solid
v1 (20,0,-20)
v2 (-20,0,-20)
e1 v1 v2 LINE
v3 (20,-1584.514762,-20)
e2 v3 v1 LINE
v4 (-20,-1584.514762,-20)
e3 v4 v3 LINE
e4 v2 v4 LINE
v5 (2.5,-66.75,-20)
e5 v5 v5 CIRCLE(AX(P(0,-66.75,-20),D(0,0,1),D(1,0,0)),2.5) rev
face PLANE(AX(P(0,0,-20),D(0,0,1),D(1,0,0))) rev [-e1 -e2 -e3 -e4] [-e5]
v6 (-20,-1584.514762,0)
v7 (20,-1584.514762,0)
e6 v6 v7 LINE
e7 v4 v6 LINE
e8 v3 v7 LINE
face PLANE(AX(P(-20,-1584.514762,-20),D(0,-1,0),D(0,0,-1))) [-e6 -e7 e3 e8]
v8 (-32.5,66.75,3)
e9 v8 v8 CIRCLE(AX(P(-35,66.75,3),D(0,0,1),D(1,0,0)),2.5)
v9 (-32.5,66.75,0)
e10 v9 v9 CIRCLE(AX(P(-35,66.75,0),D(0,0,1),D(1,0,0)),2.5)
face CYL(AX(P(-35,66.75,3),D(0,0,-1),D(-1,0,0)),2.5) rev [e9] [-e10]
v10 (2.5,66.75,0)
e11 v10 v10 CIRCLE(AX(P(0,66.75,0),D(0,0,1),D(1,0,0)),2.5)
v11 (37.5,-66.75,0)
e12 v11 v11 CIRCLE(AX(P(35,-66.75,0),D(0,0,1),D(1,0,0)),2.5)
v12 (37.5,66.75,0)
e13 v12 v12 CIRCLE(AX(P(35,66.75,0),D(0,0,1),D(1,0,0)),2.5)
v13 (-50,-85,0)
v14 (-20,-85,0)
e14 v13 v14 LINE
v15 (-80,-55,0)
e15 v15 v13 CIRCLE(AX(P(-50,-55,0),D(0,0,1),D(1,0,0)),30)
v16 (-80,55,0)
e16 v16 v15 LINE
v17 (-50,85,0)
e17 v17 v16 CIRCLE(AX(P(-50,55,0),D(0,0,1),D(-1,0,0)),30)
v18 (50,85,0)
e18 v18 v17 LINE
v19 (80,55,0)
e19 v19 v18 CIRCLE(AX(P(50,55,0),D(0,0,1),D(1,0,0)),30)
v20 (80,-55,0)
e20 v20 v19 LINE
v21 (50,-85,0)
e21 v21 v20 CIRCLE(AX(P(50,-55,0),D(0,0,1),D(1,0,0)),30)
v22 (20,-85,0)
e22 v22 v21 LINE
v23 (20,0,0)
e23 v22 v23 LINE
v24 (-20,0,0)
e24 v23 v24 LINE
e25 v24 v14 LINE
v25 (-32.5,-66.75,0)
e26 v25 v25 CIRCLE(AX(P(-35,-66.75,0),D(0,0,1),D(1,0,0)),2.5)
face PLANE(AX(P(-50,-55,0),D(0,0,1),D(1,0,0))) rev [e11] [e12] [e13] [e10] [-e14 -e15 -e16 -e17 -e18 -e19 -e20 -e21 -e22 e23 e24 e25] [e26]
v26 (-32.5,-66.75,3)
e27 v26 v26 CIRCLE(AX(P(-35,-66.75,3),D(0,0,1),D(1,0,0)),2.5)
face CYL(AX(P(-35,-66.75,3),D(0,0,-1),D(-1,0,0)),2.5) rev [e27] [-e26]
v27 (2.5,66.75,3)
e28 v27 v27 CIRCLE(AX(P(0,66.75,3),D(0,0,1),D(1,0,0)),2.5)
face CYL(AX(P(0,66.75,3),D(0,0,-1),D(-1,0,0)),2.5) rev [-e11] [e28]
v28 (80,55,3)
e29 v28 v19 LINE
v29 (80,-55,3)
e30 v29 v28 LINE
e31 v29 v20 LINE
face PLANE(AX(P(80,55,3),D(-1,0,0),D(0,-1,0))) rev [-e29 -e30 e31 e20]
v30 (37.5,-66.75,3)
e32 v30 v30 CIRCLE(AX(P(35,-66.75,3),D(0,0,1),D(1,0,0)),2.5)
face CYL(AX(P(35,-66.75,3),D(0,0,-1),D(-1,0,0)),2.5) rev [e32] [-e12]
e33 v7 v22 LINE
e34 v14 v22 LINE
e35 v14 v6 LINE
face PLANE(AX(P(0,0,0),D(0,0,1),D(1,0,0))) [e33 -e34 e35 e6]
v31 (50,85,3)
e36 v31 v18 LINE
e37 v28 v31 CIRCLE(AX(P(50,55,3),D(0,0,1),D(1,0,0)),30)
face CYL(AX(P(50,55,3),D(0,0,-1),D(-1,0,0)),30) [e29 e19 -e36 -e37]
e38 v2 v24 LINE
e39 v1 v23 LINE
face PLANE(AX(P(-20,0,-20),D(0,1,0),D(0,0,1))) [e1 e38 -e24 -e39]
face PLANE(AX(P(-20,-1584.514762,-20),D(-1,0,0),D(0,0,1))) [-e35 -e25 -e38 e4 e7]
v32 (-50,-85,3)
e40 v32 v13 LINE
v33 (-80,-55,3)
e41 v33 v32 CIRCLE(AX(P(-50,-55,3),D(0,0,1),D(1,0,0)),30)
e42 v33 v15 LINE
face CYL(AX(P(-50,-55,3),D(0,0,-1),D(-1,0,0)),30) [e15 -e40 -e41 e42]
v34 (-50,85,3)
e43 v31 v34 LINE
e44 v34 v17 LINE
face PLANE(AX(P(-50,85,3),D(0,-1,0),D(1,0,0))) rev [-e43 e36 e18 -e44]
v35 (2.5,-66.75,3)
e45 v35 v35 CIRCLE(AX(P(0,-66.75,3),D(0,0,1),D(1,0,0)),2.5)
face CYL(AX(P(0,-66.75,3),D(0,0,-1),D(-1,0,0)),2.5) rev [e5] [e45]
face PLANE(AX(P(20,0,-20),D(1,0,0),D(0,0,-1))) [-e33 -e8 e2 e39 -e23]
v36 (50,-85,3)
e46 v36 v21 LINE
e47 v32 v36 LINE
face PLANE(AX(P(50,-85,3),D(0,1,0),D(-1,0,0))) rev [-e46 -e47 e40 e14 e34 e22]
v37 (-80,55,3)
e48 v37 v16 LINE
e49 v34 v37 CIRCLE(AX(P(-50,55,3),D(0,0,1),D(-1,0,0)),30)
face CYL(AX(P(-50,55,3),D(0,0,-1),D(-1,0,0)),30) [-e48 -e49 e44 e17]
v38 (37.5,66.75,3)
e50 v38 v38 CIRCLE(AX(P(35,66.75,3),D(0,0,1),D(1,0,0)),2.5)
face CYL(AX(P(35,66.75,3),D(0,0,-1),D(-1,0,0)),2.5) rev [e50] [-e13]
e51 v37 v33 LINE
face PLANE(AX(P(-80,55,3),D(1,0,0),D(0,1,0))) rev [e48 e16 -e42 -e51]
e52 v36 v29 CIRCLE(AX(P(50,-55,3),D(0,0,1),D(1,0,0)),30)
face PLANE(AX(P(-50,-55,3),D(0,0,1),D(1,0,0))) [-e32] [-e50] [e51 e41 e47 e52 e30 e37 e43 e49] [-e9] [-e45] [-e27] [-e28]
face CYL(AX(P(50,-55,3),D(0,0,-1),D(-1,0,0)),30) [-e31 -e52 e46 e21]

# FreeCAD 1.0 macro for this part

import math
import FreeCAD as App
import Part
import Sketcher
from FreeCAD import Vector
Q = App.Units.Quantity

doc = App.newDocument("Part")
body = doc.addObject("PartDesign::Body", "Body")

# Sketch on XY plane
sketch1 = body.newObject("Sketcher::SketchObject", "Sketch")
sketch1.AttachmentSupport = (doc.getObject("XY_Plane"), [""])
sketch1.MapMode = "FlatFace"
sketch1.addGeometry(Part.LineSegment(Vector(50, 85, 0), Vector(-50, 85, 0)), False)
sketch1.addGeometry(Part.ArcOfCircle(Part.Circle(Vector(-50, 55, 0), Vector(0, 0, 1), 30), math.radians(90), math.radians(180)), False)
sketch1.addGeometry(Part.LineSegment(Vector(-80, 55, 0), Vector(-80, -55, 0)), False)
sketch1.addGeometry(Part.ArcOfCircle(Part.Circle(Vector(-50, -55, 0), Vector(0, 0, 1), 30), math.radians(180), math.radians(270)), False)
sketch1.addGeometry(Part.LineSegment(Vector(-50, -85, 0), Vector(50, -85, 0)), False)
sketch1.addGeometry(Part.ArcOfCircle(Part.Circle(Vector(50, -55, 0), Vector(0, 0, 1), 30), math.radians(-90), math.radians(0)), False)
sketch1.addGeometry(Part.LineSegment(Vector(80, -55, 0), Vector(80, 55, 0)), False)
sketch1.addGeometry(Part.ArcOfCircle(Part.Circle(Vector(50, 55, 0), Vector(0, 0, 1), 30), math.radians(0), math.radians(90)), False)
sketch1.addGeometry(Part.Circle(Vector(35, -66.75, 0), Vector(0, 0, 1), 2.5), False)
sketch1.addGeometry(Part.Circle(Vector(0, -66.75, 0), Vector(0, 0, 1), 2.5), False)
sketch1.addGeometry(Part.Circle(Vector(-35, -66.75, 0), Vector(0, 0, 1), 2.5), False)
sketch1.addGeometry(Part.Circle(Vector(35, 66.75, 0), Vector(0, 0, 1), 2.5), False)
sketch1.addGeometry(Part.Circle(Vector(0, 66.75, 0), Vector(0, 0, 1), 2.5), False)
sketch1.addGeometry(Part.Circle(Vector(-35, 66.75, 0), Vector(0, 0, 1), 2.5), False)
sketch1.addConstraint(Sketcher.Constraint("Tangent", 0, 2, 1, 1))
sketch1.addConstraint(Sketcher.Constraint("Tangent", 1, 2, 2, 1))
sketch1.addConstraint(Sketcher.Constraint("Tangent", 2, 2, 3, 1))
sketch1.addConstraint(Sketcher.Constraint("Tangent", 3, 2, 4, 1))
sketch1.addConstraint(Sketcher.Constraint("Tangent", 4, 2, 5, 1))
sketch1.addConstraint(Sketcher.Constraint("Tangent", 5, 2, 6, 1))
sketch1.addConstraint(Sketcher.Constraint("Tangent", 6, 2, 7, 1))
sketch1.addConstraint(Sketcher.Constraint("Tangent", 7, 2, 0, 1))
sketch1.addConstraint(Sketcher.Constraint("Horizontal", 0))
sketch1.addConstraint(Sketcher.Constraint("Vertical", 2))
sketch1.addConstraint(Sketcher.Constraint("Horizontal", 4))
sketch1.addConstraint(Sketcher.Constraint("Vertical", 6))
sketch1.addConstraint(Sketcher.Constraint("Equal", 1, 3))
sketch1.addConstraint(Sketcher.Constraint("Equal", 3, 5))
sketch1.addConstraint(Sketcher.Constraint("Equal", 5, 7))
sketch1.addConstraint(Sketcher.Constraint("Equal", 8, 9))
sketch1.addConstraint(Sketcher.Constraint("Equal", 9, 10))
sketch1.addConstraint(Sketcher.Constraint("Equal", 10, 11))
sketch1.addConstraint(Sketcher.Constraint("Equal", 11, 12))
sketch1.addConstraint(Sketcher.Constraint("Equal", 12, 13))
sketch1.addConstraint(Sketcher.Constraint("Symmetric", 1, 3, 5, 3, -1, 1))
sketch1.addConstraint(Sketcher.Constraint("Symmetric", 10, 3, 11, 3, -1, 1))
sketch1.addConstraint(Sketcher.Constraint("Symmetric", 9, 3, 12, 3, -1, 1))
sketch1.addConstraint(Sketcher.Constraint("Symmetric", 8, 3, 13, 3, -1, 1))
sketch1.addConstraint(Sketcher.Constraint("Symmetric", 8, 3, 10, 3, -2))
sketch1.addConstraint(Sketcher.Constraint("PointOnObject", 9, 3, -2))
sketch1.addConstraint(Sketcher.Constraint("Horizontal", 8, 3, 9, 3))
sketch1.addConstraint(Sketcher.Constraint("Diameter", 8, Q("5 mm")))
sketch1.addConstraint(Sketcher.Constraint("Radius", 1, Q("30 mm")))
sketch1.addConstraint(Sketcher.Constraint("DistanceX", 0, 2, 0, 1, Q("100 mm")))
sketch1.addConstraint(Sketcher.Constraint("DistanceY", 2, 2, 2, 1, Q("110 mm")))
sketch1.addConstraint(Sketcher.Constraint("DistanceX", -1, 1, 8, 3, Q("35 mm")))
sketch1.addConstraint(Sketcher.Constraint("DistanceY", 8, 3, 11, 3, Q("133.5 mm")))
pad1 = body.newObject("PartDesign::Pad", "Pad")
pad1.Profile = sketch1
pad1.Length = 3

# Sketch on XY plane
sketch2 = body.newObject("Sketcher::SketchObject", "Sketch001")
sketch2.AttachmentSupport = (doc.getObject("XY_Plane"), [""])
sketch2.MapMode = "FlatFace"
sketch2.addGeometry(Part.LineSegment(Vector(20, 0, 0), Vector(-20, 0, 0)), False)
sketch2.addGeometry(Part.LineSegment(Vector(-20, 0, 0), Vector(-20, -1584.514762, 0)), False)
sketch2.addGeometry(Part.LineSegment(Vector(-20, -1584.514762, 0), Vector(20, -1584.514762, 0)), False)
sketch2.addGeometry(Part.LineSegment(Vector(20, -1584.514762, 0), Vector(20, 0, 0)), False)
sketch2.addConstraint(Sketcher.Constraint("Coincident", 0, 2, 1, 1))
sketch2.addConstraint(Sketcher.Constraint("Coincident", 1, 2, 2, 1))
sketch2.addConstraint(Sketcher.Constraint("Coincident", 2, 2, 3, 1))
sketch2.addConstraint(Sketcher.Constraint("Coincident", 3, 2, 0, 1))
sketch2.addConstraint(Sketcher.Constraint("Horizontal", 0))
sketch2.addConstraint(Sketcher.Constraint("Vertical", 1))
sketch2.addConstraint(Sketcher.Constraint("Horizontal", 2))
sketch2.addConstraint(Sketcher.Constraint("Vertical", 3))
sketch2.addConstraint(Sketcher.Constraint("Symmetric", 0, 2, 3, 2, -1, 1))
sketch2.addConstraint(Sketcher.Constraint("DistanceX", 0, 2, 0, 1, Q("40 mm")))
sketch2.addConstraint(Sketcher.Constraint("DistanceY", 1, 2, 1, 1, Q("1584.514762 mm")))
pad2 = body.newObject("PartDesign::Pad", "Pad001")
pad2.Profile = sketch2
pad2.Length = 20
pad2.Reversed = True

# Sketch on XY plane
sketch3 = body.newObject("Sketcher::SketchObject", "Sketch002")
sketch3.AttachmentSupport = (doc.getObject("XY_Plane"), [""])
sketch3.MapMode = "FlatFace"
sketch3.addGeometry(Part.Circle(Vector(0, -66.75, 0), Vector(0, 0, 1), 2.5), False)
sketch3.addConstraint(Sketcher.Constraint("PointOnObject", 0, 3, -2))
sketch3.addConstraint(Sketcher.Constraint("Diameter", 0, Q("5 mm")))
sketch3.addConstraint(Sketcher.Constraint("DistanceY", 0, 3, -1, 1, Q("66.75 mm")))
pocket1 = body.newObject("PartDesign::Pocket", "Pocket")
pocket1.Profile = sketch3
pocket1.Type = "ThroughAll"
pocket1.Midplane = True

doc.recompute()
